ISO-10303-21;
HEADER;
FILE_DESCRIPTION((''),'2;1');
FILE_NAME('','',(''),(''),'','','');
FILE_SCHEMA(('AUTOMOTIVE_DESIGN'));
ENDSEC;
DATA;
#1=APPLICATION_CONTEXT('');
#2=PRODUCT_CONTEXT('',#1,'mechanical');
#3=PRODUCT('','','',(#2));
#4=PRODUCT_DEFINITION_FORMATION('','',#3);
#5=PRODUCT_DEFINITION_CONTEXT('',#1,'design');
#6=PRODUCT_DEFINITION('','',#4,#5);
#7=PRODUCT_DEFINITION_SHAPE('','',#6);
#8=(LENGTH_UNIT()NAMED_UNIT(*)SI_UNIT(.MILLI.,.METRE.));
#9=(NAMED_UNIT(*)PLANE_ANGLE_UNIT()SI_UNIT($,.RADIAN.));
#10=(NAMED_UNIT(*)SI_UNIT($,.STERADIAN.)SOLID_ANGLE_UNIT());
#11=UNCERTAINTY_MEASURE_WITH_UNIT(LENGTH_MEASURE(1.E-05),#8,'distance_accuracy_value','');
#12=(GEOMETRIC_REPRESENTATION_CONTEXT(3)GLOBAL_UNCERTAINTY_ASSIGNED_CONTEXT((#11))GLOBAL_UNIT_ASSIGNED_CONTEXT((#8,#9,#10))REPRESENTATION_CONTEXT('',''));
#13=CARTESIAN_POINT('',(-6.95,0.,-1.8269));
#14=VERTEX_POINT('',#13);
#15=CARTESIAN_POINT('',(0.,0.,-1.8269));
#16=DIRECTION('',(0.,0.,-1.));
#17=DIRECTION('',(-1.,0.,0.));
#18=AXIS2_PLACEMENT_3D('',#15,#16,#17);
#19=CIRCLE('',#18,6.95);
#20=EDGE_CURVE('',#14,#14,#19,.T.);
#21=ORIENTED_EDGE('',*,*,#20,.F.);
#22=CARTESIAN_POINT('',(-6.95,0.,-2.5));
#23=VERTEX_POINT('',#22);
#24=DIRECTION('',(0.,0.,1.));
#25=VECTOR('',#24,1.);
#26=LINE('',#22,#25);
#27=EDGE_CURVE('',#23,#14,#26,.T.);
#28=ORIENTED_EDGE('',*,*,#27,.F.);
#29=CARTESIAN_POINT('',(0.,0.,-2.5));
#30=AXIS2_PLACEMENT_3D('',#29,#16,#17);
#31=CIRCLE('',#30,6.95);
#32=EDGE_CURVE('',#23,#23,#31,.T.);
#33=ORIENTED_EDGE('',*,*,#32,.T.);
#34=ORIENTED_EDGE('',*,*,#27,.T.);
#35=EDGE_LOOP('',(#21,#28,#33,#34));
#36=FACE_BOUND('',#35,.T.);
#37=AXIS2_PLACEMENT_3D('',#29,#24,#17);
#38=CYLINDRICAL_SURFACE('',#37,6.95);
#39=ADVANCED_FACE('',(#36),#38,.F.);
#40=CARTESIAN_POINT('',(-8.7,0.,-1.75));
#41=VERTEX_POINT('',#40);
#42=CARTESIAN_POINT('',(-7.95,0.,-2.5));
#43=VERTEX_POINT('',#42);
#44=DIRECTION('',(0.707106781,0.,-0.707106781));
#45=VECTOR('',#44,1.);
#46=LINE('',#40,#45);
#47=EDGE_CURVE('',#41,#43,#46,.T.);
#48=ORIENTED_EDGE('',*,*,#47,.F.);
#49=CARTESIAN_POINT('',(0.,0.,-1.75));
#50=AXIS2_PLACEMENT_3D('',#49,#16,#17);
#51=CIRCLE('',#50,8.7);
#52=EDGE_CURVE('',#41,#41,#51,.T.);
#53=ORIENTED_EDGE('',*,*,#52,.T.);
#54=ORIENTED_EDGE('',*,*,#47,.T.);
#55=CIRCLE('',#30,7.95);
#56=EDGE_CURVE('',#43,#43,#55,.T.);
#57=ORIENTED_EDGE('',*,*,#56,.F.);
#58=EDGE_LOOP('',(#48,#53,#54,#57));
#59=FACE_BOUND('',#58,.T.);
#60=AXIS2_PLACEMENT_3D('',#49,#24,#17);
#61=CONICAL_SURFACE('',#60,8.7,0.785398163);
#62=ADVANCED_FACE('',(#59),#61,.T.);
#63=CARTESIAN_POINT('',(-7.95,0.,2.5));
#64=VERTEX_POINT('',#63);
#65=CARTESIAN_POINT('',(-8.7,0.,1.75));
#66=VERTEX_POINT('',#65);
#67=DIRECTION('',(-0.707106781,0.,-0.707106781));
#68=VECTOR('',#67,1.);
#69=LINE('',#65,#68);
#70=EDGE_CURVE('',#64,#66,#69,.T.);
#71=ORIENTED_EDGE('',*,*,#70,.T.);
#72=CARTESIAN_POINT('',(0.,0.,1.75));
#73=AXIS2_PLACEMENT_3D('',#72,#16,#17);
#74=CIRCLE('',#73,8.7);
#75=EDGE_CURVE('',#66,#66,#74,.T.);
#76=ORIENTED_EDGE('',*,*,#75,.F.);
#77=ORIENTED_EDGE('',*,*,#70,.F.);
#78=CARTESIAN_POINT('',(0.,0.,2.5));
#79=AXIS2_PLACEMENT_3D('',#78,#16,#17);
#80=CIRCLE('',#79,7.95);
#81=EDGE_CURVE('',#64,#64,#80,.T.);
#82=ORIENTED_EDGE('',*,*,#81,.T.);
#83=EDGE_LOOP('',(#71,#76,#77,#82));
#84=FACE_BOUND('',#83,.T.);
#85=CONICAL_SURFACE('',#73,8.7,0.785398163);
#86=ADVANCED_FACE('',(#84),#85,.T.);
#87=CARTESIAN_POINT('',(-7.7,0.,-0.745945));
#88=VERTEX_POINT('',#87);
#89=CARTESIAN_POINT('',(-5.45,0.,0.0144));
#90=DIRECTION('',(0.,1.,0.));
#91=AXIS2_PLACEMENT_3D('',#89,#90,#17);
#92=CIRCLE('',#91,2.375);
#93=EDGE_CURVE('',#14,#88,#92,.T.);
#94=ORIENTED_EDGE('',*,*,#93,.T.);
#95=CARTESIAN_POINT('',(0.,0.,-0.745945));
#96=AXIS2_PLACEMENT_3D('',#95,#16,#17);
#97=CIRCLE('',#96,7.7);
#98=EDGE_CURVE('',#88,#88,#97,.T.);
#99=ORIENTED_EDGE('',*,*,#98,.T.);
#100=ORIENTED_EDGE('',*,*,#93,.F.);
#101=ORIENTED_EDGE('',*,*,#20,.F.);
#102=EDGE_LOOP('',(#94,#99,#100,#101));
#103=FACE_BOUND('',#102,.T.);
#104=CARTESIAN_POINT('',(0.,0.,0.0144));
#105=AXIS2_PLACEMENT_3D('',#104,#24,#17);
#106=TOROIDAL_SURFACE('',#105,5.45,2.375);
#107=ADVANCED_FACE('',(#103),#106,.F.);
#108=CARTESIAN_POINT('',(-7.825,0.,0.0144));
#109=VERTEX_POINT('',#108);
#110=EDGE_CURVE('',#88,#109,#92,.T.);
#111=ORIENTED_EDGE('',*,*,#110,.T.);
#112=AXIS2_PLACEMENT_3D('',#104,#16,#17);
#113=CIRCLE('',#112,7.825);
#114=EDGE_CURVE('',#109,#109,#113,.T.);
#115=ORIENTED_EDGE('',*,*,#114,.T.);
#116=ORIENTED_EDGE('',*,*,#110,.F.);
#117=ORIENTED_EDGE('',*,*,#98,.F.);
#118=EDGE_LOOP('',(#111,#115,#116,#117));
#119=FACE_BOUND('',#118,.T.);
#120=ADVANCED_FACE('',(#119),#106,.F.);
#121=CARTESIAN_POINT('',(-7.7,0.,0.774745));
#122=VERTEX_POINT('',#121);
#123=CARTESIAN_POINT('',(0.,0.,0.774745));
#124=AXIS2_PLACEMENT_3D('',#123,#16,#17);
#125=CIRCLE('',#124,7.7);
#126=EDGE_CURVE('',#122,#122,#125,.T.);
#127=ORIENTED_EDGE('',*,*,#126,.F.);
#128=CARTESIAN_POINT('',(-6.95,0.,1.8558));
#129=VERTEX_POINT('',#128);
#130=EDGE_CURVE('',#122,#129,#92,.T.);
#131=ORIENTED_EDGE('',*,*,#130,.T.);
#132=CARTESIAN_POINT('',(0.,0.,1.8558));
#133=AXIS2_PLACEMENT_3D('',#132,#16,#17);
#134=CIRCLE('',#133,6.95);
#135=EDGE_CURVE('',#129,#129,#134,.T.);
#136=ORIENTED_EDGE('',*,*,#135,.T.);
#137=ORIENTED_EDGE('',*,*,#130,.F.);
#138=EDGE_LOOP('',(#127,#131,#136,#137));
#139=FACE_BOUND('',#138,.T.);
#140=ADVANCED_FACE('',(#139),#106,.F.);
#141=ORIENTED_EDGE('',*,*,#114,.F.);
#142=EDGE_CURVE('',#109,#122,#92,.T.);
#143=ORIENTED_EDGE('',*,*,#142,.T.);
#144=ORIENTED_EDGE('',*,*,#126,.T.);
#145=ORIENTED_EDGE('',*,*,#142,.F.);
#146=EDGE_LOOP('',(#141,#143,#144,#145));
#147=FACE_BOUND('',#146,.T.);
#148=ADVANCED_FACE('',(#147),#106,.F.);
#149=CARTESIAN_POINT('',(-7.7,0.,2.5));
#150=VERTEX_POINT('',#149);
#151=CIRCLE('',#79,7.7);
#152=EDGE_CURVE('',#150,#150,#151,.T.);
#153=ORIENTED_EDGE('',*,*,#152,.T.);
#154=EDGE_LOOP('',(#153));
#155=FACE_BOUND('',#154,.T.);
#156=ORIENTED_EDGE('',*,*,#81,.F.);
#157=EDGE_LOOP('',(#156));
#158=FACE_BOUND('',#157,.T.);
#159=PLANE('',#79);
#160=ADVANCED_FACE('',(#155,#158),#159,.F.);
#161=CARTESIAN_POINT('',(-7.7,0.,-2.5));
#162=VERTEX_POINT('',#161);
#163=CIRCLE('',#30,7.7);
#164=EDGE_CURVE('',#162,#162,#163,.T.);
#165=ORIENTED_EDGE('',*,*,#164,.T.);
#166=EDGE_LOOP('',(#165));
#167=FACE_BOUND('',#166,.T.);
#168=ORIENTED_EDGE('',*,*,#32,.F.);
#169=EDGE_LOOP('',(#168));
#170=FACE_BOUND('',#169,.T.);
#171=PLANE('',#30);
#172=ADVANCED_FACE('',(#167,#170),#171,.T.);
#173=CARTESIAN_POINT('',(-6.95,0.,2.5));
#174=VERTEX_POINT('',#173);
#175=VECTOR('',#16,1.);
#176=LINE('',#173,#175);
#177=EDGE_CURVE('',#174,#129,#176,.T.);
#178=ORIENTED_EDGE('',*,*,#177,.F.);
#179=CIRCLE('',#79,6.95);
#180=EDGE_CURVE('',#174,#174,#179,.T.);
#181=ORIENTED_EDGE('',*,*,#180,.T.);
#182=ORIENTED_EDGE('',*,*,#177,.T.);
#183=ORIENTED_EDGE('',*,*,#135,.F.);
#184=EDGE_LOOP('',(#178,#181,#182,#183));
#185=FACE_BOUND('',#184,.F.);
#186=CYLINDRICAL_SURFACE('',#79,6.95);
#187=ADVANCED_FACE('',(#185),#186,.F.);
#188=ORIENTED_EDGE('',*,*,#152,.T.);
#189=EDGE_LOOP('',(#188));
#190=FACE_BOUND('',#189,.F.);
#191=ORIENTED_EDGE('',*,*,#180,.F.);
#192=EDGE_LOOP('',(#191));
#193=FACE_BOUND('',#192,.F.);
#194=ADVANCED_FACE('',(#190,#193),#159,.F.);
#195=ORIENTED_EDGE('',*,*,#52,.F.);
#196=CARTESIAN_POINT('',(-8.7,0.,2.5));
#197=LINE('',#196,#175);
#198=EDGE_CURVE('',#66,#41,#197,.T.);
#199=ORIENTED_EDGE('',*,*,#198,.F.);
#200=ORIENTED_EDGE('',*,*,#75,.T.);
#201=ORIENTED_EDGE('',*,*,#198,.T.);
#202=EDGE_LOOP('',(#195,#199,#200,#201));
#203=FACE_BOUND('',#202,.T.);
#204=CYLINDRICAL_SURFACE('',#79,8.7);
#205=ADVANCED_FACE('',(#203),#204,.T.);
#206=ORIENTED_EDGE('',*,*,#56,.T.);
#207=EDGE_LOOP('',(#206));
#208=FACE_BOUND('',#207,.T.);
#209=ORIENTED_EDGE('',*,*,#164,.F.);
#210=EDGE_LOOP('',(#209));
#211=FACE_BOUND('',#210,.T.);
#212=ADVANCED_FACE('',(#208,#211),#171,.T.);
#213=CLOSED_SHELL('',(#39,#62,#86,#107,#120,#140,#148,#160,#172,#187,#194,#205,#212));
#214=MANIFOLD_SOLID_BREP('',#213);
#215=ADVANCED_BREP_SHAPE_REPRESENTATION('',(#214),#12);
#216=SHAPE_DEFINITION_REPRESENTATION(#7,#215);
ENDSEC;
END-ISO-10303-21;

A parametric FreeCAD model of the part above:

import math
import FreeCAD as App
import Part
import Sketcher
from FreeCAD import Vector
Q = App.Units.Quantity


def edges_at(feature, points):
    """Names of the edges that pass closest to the given points."""
    edges = feature.Shape.Edges
    near = lambda p: min(range(len(edges)), key=lambda i: edges[i].distToShape(Part.Vertex(*p))[0])
    return sorted({f"Edge{near(p) + 1}" for p in points})

doc = App.newDocument("Part")
body = doc.addObject("PartDesign::Body", "Body")

# Sketch on XZ plane
sketch1 = body.newObject("Sketcher::SketchObject", "Sketch")
sketch1.AttachmentSupport = (doc.getObject("XZ_Plane"), [""])
sketch1.MapMode = "FlatFace"
sketch1.addGeometry(Part.LineSegment(Vector(-7, 2.5, 0), Vector(-7, 1.9, 0)), False)
sketch1.addGeometry(Part.ArcOfCircle(Part.Circle(Vector(-5.5, 0, 0), Vector(0, 0, 1), 2.4), math.radians(129), math.radians(231)), False)
sketch1.addGeometry(Part.LineSegment(Vector(-7, -1.8, 0), Vector(-7, -2.5, 0)), False)
sketch1.addGeometry(Part.LineSegment(Vector(-7, -2.5, 0), Vector(-8.7, -2.5, 0)), False)
sketch1.addGeometry(Part.LineSegment(Vector(-8.7, -2.5, 0), Vector(-8.7, 2.5, 0)), False)
sketch1.addGeometry(Part.LineSegment(Vector(-8.7, 2.5, 0), Vector(-7, 2.5, 0)), False)
sketch1.addConstraint(Sketcher.Constraint("Coincident", 0, 2, 1, 1))
sketch1.addConstraint(Sketcher.Constraint("Coincident", 1, 2, 2, 1))
sketch1.addConstraint(Sketcher.Constraint("Coincident", 2, 2, 3, 1))
sketch1.addConstraint(Sketcher.Constraint("Coincident", 3, 2, 4, 1))
sketch1.addConstraint(Sketcher.Constraint("Coincident", 4, 2, 5, 1))
sketch1.addConstraint(Sketcher.Constraint("Coincident", 5, 2, 0, 1))
sketch1.addConstraint(Sketcher.Constraint("Vertical", 0))
sketch1.addConstraint(Sketcher.Constraint("Vertical", 2))
sketch1.addConstraint(Sketcher.Constraint("Horizontal", 3))
sketch1.addConstraint(Sketcher.Constraint("Vertical", 4))
sketch1.addConstraint(Sketcher.Constraint("Horizontal", 5))
sketch1.addConstraint(Sketcher.Constraint("Symmetric", 2, 2, 5, 2, -1))
sketch1.addConstraint(Sketcher.Constraint("DistanceY", 4, 1, 4, 2, Q("5 mm")))
sketch1.addConstraint(Sketcher.Constraint("Radius", 1, Q("2.375 mm")))
sketch1.addConstraint(Sketcher.Constraint("DistanceX", 3, 2, 3, 1, Q("1.75 mm")))
sketch1.addConstraint(Sketcher.Constraint("DistanceX", 3, 2, -1, 1, Q("8.7 mm")))
sketch1.addConstraint(Sketcher.Constraint("DistanceX", 0, 2, 1, 3, Q("1.5 mm")))
sketch1.addConstraint(Sketcher.Constraint("DistanceY", 2, 2, 2, 1, Q("0.673 mm")))
revolution = body.newObject("PartDesign::Revolution", "Revolution")
revolution.Profile = sketch1
revolution.ReferenceAxis = (sketch1, ["V_Axis"])
revolution.Angle = 360
doc.recompute()

chamfer = body.newObject("PartDesign::Chamfer", "Chamfer")
chamfer.Base = (revolution, edges_at(revolution, [(8.7, 0, -2.5), (8.7, 0, 2.5)]))
chamfer.Size = 0.75

doc.recompute()
